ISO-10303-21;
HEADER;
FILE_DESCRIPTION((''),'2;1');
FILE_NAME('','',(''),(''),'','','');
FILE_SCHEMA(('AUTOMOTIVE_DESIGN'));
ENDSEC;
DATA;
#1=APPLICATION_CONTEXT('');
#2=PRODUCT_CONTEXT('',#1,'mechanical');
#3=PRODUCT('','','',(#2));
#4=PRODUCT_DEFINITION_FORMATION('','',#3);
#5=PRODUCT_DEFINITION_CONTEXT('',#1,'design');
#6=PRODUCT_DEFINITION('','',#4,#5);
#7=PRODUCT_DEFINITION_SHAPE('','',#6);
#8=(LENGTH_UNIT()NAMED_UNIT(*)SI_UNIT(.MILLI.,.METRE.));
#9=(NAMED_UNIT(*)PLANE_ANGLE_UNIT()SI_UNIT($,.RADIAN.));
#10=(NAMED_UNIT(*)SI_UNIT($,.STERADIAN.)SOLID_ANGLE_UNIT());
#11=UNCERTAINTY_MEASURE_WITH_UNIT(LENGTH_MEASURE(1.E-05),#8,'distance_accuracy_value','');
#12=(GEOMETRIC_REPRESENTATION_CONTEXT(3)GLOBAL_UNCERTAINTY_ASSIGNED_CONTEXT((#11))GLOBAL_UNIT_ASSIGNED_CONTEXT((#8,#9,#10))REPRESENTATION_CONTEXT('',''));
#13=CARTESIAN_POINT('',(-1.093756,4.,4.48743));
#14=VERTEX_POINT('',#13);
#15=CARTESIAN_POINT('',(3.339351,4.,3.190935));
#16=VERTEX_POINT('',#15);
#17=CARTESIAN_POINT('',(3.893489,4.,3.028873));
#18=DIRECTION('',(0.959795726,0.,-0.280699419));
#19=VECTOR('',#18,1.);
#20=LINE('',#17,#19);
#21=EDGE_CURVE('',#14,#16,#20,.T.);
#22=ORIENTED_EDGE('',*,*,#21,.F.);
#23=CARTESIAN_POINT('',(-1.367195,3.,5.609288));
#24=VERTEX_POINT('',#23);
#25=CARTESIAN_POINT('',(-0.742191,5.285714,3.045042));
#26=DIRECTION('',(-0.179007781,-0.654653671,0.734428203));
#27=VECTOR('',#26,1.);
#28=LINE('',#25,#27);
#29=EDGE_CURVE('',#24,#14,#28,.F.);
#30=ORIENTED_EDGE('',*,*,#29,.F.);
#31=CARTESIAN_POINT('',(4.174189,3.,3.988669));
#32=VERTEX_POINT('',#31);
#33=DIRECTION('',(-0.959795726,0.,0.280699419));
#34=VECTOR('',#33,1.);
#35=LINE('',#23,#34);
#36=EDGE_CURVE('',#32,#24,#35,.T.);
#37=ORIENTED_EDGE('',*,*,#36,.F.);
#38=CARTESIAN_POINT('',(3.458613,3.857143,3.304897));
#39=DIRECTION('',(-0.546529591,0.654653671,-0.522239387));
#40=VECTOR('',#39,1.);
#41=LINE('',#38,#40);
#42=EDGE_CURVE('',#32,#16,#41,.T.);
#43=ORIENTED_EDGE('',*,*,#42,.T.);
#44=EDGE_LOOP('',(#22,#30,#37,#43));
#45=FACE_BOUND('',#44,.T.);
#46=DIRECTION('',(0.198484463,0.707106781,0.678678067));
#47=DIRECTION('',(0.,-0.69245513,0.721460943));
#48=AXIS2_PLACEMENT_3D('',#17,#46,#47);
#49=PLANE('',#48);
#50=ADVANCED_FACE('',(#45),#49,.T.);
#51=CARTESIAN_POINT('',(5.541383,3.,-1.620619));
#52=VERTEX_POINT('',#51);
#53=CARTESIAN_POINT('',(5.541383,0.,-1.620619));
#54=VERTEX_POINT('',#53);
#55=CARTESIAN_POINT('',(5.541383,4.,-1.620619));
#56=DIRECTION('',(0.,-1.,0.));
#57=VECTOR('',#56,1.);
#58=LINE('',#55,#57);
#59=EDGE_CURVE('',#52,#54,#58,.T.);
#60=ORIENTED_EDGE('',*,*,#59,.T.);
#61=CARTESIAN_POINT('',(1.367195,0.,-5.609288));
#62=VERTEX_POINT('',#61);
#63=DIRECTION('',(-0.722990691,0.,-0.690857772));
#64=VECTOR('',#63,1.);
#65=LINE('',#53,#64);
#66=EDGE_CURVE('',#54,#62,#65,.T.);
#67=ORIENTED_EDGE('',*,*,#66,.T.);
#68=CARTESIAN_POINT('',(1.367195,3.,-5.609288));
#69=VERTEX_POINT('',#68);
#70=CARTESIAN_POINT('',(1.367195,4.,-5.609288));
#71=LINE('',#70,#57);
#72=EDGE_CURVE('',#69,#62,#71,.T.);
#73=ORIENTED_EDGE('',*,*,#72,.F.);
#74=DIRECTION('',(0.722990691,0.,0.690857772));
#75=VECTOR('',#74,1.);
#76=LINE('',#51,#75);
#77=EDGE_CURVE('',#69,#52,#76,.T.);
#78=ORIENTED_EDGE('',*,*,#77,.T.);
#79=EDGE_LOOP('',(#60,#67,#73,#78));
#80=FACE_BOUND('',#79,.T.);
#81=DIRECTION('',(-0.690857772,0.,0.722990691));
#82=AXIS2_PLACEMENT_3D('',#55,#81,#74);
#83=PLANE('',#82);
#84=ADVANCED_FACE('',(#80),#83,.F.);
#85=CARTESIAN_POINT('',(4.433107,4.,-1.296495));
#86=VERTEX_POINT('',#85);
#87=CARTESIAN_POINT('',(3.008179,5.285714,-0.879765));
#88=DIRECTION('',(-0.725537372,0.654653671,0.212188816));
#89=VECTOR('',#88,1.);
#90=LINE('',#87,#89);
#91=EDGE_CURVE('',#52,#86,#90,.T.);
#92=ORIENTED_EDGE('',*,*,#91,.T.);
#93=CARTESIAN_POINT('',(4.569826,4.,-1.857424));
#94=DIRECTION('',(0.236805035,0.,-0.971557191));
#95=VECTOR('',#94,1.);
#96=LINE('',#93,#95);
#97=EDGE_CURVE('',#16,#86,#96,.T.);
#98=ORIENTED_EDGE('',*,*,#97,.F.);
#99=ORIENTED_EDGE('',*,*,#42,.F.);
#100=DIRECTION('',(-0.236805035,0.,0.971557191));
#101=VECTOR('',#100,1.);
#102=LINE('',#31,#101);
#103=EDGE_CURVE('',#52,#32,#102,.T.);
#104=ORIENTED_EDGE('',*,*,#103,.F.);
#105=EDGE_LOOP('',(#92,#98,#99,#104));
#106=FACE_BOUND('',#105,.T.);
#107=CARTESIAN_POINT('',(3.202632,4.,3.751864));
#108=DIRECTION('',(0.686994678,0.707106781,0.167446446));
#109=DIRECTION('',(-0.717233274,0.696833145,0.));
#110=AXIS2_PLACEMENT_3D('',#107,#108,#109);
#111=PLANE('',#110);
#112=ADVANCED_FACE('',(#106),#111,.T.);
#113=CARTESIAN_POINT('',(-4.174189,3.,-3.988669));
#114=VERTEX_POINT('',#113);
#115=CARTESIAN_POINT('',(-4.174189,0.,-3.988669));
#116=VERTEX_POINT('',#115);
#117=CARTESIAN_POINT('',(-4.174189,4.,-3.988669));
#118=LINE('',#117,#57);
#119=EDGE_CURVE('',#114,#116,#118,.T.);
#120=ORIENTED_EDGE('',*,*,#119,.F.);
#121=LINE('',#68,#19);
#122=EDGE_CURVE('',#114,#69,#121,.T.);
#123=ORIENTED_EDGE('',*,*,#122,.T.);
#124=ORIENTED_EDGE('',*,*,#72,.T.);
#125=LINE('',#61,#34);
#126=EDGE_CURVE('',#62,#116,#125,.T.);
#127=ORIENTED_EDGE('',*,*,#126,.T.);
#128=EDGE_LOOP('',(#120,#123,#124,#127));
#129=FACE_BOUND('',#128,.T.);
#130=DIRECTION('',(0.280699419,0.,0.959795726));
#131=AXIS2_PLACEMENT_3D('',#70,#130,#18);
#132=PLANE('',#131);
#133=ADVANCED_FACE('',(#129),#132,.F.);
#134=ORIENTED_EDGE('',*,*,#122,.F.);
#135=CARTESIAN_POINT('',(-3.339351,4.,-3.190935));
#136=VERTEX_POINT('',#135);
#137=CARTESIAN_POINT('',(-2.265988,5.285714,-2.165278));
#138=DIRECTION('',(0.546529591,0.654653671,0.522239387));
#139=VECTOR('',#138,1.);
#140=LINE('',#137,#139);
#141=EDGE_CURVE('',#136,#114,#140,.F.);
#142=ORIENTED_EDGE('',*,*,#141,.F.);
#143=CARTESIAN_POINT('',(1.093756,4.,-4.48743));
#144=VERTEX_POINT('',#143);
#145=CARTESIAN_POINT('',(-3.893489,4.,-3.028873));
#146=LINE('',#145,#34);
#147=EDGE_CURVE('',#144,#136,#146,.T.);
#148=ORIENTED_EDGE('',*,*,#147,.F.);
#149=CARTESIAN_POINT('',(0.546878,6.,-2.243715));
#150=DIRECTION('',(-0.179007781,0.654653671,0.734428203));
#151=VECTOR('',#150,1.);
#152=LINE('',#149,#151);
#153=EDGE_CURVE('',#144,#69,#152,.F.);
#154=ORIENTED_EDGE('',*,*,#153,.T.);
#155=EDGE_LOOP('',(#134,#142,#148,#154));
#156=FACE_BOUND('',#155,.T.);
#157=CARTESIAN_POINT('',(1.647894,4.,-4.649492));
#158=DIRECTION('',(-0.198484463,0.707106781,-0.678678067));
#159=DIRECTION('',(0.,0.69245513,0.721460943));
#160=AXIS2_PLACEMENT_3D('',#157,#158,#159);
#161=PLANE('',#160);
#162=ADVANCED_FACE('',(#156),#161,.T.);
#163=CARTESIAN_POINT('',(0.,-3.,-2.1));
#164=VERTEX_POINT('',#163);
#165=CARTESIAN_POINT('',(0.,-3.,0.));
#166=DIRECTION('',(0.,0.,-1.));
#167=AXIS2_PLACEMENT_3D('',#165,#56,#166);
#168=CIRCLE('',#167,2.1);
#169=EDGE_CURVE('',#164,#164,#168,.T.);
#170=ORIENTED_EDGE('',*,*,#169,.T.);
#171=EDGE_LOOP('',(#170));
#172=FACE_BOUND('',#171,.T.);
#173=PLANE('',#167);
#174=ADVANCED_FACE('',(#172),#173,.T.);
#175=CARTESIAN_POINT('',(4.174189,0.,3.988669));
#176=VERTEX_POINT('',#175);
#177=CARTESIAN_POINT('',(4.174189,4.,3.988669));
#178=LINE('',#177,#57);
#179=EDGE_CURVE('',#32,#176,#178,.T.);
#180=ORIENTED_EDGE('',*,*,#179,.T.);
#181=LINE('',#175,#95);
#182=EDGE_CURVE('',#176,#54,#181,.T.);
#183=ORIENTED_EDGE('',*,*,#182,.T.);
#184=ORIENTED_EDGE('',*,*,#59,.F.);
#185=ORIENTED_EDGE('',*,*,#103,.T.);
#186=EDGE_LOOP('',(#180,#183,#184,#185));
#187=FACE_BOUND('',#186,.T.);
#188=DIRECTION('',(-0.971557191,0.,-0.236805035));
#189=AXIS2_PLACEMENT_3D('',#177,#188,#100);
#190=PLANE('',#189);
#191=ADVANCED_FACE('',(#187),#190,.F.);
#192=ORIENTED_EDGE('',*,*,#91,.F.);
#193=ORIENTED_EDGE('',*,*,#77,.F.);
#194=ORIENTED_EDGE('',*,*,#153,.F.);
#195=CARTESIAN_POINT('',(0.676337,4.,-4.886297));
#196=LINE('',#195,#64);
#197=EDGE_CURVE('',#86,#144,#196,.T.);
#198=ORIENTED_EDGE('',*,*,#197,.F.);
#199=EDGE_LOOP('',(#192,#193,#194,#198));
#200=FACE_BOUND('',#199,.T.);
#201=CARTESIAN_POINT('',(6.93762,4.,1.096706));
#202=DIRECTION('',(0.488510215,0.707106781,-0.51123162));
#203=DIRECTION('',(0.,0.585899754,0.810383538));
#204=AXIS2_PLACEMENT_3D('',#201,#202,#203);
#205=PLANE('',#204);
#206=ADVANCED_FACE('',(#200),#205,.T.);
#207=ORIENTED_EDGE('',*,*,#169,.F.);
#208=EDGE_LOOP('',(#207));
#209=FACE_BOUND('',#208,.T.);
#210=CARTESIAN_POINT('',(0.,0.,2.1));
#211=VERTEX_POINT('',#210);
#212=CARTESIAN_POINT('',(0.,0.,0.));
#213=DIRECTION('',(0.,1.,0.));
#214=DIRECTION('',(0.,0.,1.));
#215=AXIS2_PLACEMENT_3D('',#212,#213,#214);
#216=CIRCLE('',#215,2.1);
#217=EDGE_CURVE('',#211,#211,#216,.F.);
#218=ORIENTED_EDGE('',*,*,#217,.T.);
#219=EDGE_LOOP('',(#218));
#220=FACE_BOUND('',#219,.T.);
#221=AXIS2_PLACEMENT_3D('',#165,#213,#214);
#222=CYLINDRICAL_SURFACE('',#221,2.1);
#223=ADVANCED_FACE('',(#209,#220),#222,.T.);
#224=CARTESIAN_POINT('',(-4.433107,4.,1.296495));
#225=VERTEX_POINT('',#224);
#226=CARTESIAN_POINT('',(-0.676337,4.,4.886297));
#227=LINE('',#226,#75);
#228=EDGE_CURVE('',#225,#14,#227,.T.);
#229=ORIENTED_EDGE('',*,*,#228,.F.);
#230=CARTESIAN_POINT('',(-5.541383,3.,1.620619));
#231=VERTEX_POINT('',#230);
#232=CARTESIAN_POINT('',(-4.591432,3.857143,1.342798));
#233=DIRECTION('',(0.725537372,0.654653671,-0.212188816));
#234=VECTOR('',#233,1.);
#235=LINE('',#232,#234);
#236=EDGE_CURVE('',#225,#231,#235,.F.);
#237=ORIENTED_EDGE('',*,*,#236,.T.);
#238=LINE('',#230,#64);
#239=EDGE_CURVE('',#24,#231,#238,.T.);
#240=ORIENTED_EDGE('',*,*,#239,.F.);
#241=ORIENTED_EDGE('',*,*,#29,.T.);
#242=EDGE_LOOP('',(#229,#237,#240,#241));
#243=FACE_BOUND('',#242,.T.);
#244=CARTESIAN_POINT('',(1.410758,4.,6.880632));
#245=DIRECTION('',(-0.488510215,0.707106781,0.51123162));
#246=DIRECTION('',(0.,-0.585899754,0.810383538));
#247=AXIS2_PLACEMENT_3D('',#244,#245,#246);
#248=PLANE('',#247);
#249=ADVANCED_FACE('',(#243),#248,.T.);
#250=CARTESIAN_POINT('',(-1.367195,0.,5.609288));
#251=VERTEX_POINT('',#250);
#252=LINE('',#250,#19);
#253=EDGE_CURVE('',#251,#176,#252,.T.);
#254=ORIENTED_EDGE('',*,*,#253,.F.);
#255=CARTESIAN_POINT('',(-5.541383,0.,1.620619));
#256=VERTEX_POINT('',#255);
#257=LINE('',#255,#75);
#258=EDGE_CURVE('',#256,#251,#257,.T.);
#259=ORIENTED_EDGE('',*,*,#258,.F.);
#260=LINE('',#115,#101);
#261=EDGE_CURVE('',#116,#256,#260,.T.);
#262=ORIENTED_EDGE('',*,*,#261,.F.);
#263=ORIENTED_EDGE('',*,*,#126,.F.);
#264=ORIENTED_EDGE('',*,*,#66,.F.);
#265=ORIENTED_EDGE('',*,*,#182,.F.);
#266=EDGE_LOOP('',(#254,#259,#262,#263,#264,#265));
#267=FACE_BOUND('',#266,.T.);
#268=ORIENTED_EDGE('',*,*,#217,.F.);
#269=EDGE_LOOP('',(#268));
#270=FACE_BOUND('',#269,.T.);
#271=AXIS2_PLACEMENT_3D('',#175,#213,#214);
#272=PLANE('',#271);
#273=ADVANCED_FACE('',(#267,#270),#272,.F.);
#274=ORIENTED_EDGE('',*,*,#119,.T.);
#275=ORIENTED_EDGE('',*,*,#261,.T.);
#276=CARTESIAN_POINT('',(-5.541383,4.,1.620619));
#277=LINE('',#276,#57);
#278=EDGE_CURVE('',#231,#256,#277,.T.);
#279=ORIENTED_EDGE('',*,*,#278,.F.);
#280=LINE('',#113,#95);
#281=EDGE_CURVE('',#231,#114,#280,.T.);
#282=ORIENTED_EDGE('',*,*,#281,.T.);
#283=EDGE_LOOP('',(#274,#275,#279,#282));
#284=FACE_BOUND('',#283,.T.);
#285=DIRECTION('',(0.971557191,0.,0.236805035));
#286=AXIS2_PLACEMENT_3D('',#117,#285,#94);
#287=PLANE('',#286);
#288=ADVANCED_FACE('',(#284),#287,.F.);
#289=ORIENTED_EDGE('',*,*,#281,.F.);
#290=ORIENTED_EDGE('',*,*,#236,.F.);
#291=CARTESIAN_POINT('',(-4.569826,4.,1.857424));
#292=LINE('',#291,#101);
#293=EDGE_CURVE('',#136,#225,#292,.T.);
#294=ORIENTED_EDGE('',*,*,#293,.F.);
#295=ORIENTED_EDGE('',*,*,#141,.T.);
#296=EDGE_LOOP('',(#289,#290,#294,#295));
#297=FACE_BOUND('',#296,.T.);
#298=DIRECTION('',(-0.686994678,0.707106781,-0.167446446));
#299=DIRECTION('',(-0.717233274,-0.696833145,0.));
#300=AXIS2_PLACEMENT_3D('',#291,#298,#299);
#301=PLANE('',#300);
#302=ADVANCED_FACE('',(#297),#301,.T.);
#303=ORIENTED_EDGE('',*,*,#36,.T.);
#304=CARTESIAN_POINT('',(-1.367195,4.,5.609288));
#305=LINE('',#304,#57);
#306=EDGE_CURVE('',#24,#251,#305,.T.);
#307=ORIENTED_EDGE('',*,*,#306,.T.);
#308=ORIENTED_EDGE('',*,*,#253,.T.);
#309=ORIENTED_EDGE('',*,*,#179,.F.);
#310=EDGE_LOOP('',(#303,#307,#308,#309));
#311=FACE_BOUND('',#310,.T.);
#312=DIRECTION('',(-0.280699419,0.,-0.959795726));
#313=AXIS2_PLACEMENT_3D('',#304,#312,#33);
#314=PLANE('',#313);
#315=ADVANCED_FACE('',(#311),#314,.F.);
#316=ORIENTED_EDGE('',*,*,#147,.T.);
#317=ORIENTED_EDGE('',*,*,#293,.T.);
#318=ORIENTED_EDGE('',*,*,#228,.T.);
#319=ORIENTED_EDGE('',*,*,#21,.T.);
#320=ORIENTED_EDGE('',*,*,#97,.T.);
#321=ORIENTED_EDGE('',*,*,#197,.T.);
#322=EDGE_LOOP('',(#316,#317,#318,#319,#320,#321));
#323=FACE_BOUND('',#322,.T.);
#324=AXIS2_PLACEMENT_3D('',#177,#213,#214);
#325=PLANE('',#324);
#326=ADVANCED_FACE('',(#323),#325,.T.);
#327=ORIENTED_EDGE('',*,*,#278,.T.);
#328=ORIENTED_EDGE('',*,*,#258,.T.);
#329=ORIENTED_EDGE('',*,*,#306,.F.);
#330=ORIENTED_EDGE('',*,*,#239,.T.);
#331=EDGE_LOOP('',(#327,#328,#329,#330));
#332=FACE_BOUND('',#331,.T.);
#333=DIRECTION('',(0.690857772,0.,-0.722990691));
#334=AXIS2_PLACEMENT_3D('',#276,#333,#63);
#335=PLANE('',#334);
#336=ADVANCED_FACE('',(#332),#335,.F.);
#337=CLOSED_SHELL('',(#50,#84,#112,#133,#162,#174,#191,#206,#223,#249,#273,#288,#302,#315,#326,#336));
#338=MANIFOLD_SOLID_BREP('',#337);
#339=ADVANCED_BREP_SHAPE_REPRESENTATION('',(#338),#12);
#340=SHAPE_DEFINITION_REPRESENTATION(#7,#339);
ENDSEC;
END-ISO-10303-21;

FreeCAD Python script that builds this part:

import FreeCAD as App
import Part
import Sketcher
from FreeCAD import Vector


def edges_at(feature, points):
    """Names of the edges that pass closest to the given points."""
    edges = feature.Shape.Edges
    near = lambda p: min(range(len(edges)), key=lambda i: edges[i].distToShape(Part.Vertex(*p))[0])
    return sorted({f"Edge{near(p) + 1}" for p in points})

doc = App.newDocument("Part")
body = doc.addObject("PartDesign::Body", "Body")

sketch1 = doc.addObject("Sketcher::SketchObject", "Sketch")
body.addObject(sketch1)
sketch1.AttachmentSupport = (doc.XZ_Plane, [""])
sketch1.MapMode = "FlatFace"
sketch1.addGeometry([
    Part.LineSegment(Vector(4.174189, 3.988669, 0), Vector(5.541383, -1.620619, 0)),
    Part.LineSegment(Vector(5.541383, -1.620619, 0), Vector(1.367195, -5.609288, 0)),
    Part.LineSegment(Vector(1.367195, -5.609288, 0), Vector(-4.174189, -3.988669, 0)),
    Part.LineSegment(Vector(-4.174189, -3.988669, 0), Vector(-5.541383, 1.620619, 0)),
    Part.LineSegment(Vector(-5.541383, 1.620619, 0), Vector(-1.367195, 5.609288, 0)),
    Part.LineSegment(Vector(-1.367195, 5.609288, 0), Vector(4.174189, 3.988669, 0)),
], False)
sketch1.addConstraint([
    Sketcher.Constraint("Coincident", 0, 2, 1, 1),
    Sketcher.Constraint("Coincident", 1, 2, 2, 1),
    Sketcher.Constraint("Coincident", 2, 2, 3, 1),
    Sketcher.Constraint("Coincident", 3, 2, 4, 1),
    Sketcher.Constraint("Coincident", 4, 2, 5, 1),
    Sketcher.Constraint("Coincident", 5, 2, 0, 1),
    Sketcher.Constraint("Symmetric", 0, 2, 3, 2, -1, 1),
    Sketcher.Constraint("Symmetric", 1, 2, 4, 2, -1, 1),
    Sketcher.Constraint("Symmetric", 2, 2, 5, 2, -1, 1),
    Sketcher.Constraint("Equal", 0, 1),
    Sketcher.Constraint("Equal", 1, 2),
    Sketcher.Constraint("DistanceY", 0, 2, -1, 1, 1.620619),
    Sketcher.Constraint("DistanceY", 1, 2, -1, 1, 5.609288),
    Sketcher.Constraint("DistanceX", 2, 2, -1, 1, 4.174189),
    Sketcher.Constraint("DistanceY", 2, 2, -1, 1, 3.988669),
])
pad1 = doc.addObject("PartDesign::Pad", "Pad")
body.addObject(pad1)
pad1.Profile = sketch1
pad1.Length = 4
pad1.Reversed = True
doc.recompute()

chamfer = doc.addObject("PartDesign::Chamfer", "Chamfer")
body.addObject(chamfer)
chamfer.Base = (pad1, edges_at(pad1, [
    (3.454, 4, -3.615),
    (-1.403, 4, -4.799),
    (-4.858, 4, -1.184),
    (-3.454, 4, 3.615),
    (1.403, 4, 4.799),
    (4.858, 4, 1.184),
]))
chamfer.Size = 1

sketch2 = doc.addObject("Sketcher::SketchObject", "Sketch001")
body.addObject(sketch2)
sketch2.AttachmentSupport = (doc.XZ_Plane, [""])
sketch2.MapMode = "FlatFace"
sketch2.addGeometry(Part.Circle(Vector(0, 0, 0), Vector(0, 0, 1), 2.1), False)
sketch2.addConstraint([
    Sketcher.Constraint("Coincident", 0, 3, -1, 1),
    Sketcher.Constraint("Diameter", 0, 4.2),
])
pad2 = doc.addObject("PartDesign::Pad", "Pad001")
body.addObject(pad2)
pad2.Profile = sketch2
pad2.Length = 3

doc.recompute()
